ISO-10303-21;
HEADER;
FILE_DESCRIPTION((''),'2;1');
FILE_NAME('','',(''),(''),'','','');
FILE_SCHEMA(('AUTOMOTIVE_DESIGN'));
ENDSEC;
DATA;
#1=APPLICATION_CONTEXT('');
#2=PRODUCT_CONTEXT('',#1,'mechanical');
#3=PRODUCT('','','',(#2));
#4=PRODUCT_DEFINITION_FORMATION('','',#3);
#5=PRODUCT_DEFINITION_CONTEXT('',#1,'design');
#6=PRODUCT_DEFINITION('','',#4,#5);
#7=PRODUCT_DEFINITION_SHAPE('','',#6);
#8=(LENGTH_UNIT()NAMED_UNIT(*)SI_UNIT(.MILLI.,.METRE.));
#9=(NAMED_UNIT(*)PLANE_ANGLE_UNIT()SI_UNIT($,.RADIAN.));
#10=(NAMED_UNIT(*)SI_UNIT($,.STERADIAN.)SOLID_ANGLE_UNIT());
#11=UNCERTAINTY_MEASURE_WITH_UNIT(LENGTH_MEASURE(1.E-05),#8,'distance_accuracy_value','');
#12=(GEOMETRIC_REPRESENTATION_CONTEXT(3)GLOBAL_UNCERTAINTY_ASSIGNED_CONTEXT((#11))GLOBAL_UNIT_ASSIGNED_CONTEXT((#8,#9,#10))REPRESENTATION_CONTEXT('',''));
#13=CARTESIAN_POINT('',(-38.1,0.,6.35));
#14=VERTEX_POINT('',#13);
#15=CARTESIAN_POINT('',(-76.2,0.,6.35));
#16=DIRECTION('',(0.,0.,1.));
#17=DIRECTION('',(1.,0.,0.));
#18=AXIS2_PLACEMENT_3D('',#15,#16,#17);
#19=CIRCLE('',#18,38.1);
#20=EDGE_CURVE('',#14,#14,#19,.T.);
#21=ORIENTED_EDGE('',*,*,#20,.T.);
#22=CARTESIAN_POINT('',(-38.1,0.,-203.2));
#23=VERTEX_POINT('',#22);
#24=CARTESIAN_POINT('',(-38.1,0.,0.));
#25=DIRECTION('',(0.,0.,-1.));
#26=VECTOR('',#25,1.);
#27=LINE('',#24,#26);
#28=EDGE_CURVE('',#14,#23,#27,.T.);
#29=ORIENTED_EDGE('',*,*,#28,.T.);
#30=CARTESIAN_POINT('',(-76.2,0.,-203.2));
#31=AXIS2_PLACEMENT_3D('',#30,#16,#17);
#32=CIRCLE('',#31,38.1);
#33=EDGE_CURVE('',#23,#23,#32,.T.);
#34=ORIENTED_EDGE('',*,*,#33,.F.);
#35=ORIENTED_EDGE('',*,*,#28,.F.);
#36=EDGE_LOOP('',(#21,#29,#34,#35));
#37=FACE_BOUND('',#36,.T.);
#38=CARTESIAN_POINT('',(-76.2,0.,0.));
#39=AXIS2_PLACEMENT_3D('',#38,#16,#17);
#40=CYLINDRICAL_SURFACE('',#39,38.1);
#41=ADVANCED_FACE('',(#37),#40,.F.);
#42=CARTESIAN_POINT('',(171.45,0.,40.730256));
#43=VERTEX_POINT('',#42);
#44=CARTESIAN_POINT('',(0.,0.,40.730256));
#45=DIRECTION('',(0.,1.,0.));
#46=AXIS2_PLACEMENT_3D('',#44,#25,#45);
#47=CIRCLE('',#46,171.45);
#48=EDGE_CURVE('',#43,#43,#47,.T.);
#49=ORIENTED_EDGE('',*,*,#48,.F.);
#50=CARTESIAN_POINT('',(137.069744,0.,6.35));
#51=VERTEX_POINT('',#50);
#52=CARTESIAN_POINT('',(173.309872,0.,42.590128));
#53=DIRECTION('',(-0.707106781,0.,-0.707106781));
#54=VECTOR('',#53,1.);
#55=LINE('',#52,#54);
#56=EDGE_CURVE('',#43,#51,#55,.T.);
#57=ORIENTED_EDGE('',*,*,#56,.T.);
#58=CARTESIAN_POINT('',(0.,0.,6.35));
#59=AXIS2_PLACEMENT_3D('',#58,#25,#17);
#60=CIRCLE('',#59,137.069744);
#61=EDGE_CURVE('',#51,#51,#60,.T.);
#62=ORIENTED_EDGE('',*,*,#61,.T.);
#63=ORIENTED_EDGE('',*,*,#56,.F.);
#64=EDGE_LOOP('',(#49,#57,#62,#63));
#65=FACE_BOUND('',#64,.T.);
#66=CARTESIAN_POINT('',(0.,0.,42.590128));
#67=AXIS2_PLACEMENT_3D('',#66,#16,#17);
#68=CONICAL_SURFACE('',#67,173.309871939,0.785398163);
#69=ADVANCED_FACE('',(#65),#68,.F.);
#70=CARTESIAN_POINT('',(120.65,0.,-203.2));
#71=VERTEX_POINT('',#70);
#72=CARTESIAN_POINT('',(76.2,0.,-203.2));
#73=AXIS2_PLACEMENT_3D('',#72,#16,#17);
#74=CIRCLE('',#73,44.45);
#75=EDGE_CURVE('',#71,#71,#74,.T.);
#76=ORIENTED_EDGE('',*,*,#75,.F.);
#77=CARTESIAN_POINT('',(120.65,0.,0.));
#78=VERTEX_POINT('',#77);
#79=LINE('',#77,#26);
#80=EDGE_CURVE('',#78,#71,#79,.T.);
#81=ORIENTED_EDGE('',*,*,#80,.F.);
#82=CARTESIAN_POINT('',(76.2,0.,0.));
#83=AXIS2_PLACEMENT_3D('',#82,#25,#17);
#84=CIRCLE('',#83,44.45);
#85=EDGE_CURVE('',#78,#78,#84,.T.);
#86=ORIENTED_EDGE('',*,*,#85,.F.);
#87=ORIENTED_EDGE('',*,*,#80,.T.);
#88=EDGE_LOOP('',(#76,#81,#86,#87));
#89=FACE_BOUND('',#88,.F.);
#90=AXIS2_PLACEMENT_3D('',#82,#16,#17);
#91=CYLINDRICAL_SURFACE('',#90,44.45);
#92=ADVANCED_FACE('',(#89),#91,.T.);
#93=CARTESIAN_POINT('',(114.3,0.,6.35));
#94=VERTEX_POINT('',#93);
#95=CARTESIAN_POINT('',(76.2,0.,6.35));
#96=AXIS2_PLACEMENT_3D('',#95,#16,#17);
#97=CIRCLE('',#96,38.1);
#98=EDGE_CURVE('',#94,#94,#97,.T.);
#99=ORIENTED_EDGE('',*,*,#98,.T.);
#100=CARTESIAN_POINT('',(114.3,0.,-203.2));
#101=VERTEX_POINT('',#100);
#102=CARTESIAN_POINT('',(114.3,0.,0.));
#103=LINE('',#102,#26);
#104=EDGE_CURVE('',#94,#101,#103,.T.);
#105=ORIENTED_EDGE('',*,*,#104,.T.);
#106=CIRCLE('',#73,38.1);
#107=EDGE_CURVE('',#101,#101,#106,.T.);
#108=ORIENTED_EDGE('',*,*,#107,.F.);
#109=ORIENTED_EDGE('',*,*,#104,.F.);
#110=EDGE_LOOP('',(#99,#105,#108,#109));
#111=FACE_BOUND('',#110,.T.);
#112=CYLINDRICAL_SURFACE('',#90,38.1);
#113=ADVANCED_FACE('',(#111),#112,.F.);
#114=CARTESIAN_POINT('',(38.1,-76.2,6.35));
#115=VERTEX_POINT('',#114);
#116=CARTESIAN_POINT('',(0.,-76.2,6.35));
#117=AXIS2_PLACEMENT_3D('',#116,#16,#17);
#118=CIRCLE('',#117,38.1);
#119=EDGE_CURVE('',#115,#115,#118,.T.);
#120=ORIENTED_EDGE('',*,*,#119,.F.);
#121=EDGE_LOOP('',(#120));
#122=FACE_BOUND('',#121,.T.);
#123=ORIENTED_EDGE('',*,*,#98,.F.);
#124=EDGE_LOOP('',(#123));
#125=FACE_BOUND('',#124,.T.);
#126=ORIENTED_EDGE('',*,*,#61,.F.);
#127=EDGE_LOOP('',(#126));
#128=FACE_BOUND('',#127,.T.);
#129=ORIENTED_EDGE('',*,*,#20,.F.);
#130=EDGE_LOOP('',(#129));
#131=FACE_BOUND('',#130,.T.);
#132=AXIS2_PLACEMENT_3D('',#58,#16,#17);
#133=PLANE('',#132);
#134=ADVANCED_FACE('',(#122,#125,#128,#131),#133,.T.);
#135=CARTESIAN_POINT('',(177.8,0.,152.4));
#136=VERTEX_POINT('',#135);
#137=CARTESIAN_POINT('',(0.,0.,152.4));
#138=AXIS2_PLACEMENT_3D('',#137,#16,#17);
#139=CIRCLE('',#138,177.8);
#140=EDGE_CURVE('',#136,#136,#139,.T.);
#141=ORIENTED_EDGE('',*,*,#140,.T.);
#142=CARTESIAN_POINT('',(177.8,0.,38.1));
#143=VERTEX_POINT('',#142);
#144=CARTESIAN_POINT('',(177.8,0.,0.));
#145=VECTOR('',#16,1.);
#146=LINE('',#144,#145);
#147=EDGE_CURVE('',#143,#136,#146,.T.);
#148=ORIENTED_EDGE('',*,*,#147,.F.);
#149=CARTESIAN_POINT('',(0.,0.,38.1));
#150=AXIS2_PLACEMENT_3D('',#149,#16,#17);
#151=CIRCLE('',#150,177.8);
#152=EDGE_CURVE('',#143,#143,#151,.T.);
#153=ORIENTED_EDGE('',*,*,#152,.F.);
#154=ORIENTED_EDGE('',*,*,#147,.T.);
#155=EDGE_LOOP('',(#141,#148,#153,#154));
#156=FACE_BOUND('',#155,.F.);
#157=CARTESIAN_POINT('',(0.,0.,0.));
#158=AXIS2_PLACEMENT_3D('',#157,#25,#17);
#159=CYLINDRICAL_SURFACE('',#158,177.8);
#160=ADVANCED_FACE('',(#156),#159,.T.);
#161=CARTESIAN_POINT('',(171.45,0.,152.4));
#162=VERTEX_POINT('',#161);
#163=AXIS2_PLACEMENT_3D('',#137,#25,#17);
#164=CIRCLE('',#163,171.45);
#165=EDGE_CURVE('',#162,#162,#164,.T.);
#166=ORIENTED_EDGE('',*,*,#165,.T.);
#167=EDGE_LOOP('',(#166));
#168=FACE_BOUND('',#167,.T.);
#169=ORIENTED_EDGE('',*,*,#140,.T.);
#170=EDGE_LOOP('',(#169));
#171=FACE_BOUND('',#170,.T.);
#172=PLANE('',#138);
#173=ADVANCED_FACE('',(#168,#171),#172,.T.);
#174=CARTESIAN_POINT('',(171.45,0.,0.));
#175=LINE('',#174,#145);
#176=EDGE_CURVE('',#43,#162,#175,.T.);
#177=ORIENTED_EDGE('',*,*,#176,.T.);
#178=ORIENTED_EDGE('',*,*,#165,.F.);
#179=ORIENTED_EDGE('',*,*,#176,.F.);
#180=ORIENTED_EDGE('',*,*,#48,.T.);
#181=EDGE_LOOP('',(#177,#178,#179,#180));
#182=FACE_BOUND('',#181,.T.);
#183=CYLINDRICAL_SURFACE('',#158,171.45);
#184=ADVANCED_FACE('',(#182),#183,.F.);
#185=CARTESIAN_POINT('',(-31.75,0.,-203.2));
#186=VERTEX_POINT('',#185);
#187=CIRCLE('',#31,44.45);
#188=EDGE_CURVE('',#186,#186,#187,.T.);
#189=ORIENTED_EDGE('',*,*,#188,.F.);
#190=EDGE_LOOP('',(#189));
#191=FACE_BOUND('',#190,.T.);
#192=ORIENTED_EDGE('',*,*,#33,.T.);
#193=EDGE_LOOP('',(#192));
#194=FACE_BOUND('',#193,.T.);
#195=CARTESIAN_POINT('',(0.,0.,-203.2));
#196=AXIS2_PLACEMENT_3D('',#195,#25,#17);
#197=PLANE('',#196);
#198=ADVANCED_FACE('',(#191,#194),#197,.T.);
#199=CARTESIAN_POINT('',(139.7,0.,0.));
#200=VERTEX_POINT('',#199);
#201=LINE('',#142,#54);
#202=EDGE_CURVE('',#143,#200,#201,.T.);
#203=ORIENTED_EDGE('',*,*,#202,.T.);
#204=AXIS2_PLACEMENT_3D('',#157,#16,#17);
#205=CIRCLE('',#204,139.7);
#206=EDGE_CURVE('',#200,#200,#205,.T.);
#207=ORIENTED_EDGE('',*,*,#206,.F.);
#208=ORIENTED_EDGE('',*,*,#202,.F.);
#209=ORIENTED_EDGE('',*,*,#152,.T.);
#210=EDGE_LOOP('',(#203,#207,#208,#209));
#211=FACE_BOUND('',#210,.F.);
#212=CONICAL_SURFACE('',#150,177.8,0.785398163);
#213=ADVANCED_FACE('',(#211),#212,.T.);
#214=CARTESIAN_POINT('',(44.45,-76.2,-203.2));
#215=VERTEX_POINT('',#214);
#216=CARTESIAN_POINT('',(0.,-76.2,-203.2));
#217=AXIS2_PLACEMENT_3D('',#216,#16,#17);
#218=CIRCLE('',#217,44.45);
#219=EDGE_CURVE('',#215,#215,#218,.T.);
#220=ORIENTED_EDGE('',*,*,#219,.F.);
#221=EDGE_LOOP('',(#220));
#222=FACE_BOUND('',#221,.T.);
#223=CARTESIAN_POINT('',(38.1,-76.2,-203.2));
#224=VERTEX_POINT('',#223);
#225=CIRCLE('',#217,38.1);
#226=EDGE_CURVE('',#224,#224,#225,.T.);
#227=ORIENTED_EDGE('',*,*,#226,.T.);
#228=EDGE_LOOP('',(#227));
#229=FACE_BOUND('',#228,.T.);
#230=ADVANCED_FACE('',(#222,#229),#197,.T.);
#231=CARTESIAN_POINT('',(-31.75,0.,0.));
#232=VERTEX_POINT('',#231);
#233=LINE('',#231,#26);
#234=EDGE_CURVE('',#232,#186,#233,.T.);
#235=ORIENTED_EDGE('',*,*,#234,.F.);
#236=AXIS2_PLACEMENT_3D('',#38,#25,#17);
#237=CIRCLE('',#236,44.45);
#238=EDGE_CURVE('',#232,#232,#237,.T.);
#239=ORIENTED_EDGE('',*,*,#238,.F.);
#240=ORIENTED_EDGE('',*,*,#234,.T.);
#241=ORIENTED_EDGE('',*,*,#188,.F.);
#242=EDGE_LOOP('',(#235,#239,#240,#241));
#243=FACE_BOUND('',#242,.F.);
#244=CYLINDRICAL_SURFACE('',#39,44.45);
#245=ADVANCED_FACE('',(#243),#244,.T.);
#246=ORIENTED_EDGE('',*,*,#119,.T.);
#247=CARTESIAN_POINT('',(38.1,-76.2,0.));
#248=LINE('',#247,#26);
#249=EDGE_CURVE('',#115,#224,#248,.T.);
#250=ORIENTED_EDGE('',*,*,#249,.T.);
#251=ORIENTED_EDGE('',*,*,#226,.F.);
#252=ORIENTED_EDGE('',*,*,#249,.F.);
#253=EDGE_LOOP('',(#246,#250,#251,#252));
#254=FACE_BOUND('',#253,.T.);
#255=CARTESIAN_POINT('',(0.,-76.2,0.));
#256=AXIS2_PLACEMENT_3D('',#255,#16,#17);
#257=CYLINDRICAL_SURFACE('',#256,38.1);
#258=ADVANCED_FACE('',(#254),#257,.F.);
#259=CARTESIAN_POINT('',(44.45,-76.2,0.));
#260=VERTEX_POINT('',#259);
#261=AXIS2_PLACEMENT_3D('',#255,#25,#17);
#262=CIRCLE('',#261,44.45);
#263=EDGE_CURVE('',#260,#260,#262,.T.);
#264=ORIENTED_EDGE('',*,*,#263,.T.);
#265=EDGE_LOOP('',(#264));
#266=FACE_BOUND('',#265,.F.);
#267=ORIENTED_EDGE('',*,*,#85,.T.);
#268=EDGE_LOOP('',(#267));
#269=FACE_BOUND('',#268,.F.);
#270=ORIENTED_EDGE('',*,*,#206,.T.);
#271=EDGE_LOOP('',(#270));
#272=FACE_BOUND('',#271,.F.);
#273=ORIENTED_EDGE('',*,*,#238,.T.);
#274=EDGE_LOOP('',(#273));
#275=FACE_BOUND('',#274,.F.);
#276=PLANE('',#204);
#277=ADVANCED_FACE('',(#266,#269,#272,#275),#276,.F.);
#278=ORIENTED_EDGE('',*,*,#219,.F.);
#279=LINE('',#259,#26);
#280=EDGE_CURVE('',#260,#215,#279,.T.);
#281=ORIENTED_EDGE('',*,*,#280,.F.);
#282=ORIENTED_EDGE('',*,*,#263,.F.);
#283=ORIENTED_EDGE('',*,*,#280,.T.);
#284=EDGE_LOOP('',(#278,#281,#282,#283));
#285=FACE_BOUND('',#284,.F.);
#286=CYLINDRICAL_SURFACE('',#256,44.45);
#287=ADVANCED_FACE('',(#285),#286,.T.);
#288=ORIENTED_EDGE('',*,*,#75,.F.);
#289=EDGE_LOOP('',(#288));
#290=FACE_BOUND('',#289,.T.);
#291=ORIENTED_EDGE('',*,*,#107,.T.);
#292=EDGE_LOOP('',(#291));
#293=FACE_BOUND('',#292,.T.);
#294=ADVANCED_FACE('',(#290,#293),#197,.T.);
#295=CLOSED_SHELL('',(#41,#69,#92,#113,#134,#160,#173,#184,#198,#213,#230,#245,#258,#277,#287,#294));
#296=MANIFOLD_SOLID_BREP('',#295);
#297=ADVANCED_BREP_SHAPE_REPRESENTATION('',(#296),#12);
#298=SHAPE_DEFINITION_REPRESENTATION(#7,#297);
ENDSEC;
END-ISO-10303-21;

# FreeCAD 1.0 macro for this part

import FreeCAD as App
import Part
import Sketcher

V = App.Vector
Q = App.Units.Quantity


def edges_at(feature, points):
    """Names of the edges that pass closest to the given points."""
    edges = feature.Shape.Edges
    near = lambda p: min(range(len(edges)), key=lambda i: edges[i].distToShape(Part.Vertex(*p))[0])
    return sorted({f"Edge{near(p) + 1}" for p in points})


def faces_at(feature, points):
    """Names of the faces that lie closest to the given points."""
    faces = feature.Shape.Faces
    near = lambda p: min(range(len(faces)), key=lambda i: faces[i].distToShape(Part.Vertex(*p))[0])
    return sorted({f"Face{near(p) + 1}" for p in points})

doc = App.newDocument("Part")
body = doc.addObject("PartDesign::Body", "Body")

# Sketch on XY plane
sketch1 = body.newObject("Sketcher::SketchObject", "Sketch")
sketch1.AttachmentSupport = (doc.getObject("XY_Plane"), [""])
sketch1.MapMode = "FlatFace"
sketch1.addGeometry(Part.Circle(V(0, 0, 0), V(0, 0, 1), 178), False)
sketch1.addConstraint(Sketcher.Constraint("Coincident", 0, 3, -1, 1))
sketch1.addConstraint(Sketcher.Constraint("Diameter", 0, Q("14 in")))
pad1 = body.newObject("PartDesign::Pad", "Pad")
pad1.Profile = sketch1
pad1.Length = Q("6 in")

# Sketch on XY plane
sketch2 = body.newObject("Sketcher::SketchObject", "Sketch001")
sketch2.AttachmentSupport = (doc.getObject("XY_Plane"), [""])
sketch2.MapMode = "FlatFace"
sketch2.addGeometry(Part.Circle(V(76, 0, 0), V(0, 0, 1), 44), False)
sketch2.addGeometry(Part.Circle(V(0, -76, 0), V(0, 0, 1), 44), False)
sketch2.addGeometry(Part.Circle(V(-76, 0, 0), V(0, 0, 1), 44), False)
sketch2.addConstraint(Sketcher.Constraint("Equal", 0, 1))
sketch2.addConstraint(Sketcher.Constraint("Equal", 1, 2))
sketch2.addConstraint(Sketcher.Constraint("Symmetric", 0, 3, 2, 3, -1, 1))
sketch2.addConstraint(Sketcher.Constraint("PointOnObject", 0, 3, -1))
sketch2.addConstraint(Sketcher.Constraint("PointOnObject", 1, 3, -2))
sketch2.addConstraint(Sketcher.Constraint("Diameter", 0, Q("3.5 in")))
sketch2.addConstraint(Sketcher.Constraint("DistanceX", -1, 1, 0, 3, Q("3 in")))
sketch2.addConstraint(Sketcher.Constraint("DistanceY", 1, 3, -1, 1, Q("3 in")))
pad2 = body.newObject("PartDesign::Pad", "Pad001")
pad2.Profile = sketch2
pad2.Length = Q("8.25 in")
pad2.Reversed = True
doc.recompute()

chamfer = body.newObject("PartDesign::Chamfer", "Chamfer")
chamfer.Base = (pad2, edges_at(pad2, [(-177.8, 0, 0)]))
chamfer.Size = Q("1.5 in")
doc.recompute()

thickness = body.newObject("PartDesign::Thickness", "Thickness")
thickness.Base = (chamfer, faces_at(chamfer, [(0, 0, 152.4)]))
thickness.Value = Q("0.25 in")
thickness.Reversed = True
thickness.Join = "Intersection"

# Sketch on XY plane
sketch3 = body.newObject("Sketcher::SketchObject", "Sketch002")
sketch3.AttachmentSupport = (doc.getObject("XY_Plane"), [""])
sketch3.MapMode = "FlatFace"
sketch3.AttachmentOffset = App.Placement(V(0, 0, -8.25 * 25.4), App.Rotation())
sketch3.addGeometry(Part.Circle(V(0, 0, 0), V(0, 0, 1), 133), False)
sketch3.addConstraint(Sketcher.Constraint("Coincident", 0, 3, -1, 1))
sketch3.addConstraint(Sketcher.Constraint("Diameter", 0, Q("265.382146 mm")))
pocket1 = body.newObject("PartDesign::Pocket", "Pocket")
pocket1.Profile = sketch3
pocket1.Length = Q("0.25 in")
pocket1.Reversed = True

doc.recompute()
